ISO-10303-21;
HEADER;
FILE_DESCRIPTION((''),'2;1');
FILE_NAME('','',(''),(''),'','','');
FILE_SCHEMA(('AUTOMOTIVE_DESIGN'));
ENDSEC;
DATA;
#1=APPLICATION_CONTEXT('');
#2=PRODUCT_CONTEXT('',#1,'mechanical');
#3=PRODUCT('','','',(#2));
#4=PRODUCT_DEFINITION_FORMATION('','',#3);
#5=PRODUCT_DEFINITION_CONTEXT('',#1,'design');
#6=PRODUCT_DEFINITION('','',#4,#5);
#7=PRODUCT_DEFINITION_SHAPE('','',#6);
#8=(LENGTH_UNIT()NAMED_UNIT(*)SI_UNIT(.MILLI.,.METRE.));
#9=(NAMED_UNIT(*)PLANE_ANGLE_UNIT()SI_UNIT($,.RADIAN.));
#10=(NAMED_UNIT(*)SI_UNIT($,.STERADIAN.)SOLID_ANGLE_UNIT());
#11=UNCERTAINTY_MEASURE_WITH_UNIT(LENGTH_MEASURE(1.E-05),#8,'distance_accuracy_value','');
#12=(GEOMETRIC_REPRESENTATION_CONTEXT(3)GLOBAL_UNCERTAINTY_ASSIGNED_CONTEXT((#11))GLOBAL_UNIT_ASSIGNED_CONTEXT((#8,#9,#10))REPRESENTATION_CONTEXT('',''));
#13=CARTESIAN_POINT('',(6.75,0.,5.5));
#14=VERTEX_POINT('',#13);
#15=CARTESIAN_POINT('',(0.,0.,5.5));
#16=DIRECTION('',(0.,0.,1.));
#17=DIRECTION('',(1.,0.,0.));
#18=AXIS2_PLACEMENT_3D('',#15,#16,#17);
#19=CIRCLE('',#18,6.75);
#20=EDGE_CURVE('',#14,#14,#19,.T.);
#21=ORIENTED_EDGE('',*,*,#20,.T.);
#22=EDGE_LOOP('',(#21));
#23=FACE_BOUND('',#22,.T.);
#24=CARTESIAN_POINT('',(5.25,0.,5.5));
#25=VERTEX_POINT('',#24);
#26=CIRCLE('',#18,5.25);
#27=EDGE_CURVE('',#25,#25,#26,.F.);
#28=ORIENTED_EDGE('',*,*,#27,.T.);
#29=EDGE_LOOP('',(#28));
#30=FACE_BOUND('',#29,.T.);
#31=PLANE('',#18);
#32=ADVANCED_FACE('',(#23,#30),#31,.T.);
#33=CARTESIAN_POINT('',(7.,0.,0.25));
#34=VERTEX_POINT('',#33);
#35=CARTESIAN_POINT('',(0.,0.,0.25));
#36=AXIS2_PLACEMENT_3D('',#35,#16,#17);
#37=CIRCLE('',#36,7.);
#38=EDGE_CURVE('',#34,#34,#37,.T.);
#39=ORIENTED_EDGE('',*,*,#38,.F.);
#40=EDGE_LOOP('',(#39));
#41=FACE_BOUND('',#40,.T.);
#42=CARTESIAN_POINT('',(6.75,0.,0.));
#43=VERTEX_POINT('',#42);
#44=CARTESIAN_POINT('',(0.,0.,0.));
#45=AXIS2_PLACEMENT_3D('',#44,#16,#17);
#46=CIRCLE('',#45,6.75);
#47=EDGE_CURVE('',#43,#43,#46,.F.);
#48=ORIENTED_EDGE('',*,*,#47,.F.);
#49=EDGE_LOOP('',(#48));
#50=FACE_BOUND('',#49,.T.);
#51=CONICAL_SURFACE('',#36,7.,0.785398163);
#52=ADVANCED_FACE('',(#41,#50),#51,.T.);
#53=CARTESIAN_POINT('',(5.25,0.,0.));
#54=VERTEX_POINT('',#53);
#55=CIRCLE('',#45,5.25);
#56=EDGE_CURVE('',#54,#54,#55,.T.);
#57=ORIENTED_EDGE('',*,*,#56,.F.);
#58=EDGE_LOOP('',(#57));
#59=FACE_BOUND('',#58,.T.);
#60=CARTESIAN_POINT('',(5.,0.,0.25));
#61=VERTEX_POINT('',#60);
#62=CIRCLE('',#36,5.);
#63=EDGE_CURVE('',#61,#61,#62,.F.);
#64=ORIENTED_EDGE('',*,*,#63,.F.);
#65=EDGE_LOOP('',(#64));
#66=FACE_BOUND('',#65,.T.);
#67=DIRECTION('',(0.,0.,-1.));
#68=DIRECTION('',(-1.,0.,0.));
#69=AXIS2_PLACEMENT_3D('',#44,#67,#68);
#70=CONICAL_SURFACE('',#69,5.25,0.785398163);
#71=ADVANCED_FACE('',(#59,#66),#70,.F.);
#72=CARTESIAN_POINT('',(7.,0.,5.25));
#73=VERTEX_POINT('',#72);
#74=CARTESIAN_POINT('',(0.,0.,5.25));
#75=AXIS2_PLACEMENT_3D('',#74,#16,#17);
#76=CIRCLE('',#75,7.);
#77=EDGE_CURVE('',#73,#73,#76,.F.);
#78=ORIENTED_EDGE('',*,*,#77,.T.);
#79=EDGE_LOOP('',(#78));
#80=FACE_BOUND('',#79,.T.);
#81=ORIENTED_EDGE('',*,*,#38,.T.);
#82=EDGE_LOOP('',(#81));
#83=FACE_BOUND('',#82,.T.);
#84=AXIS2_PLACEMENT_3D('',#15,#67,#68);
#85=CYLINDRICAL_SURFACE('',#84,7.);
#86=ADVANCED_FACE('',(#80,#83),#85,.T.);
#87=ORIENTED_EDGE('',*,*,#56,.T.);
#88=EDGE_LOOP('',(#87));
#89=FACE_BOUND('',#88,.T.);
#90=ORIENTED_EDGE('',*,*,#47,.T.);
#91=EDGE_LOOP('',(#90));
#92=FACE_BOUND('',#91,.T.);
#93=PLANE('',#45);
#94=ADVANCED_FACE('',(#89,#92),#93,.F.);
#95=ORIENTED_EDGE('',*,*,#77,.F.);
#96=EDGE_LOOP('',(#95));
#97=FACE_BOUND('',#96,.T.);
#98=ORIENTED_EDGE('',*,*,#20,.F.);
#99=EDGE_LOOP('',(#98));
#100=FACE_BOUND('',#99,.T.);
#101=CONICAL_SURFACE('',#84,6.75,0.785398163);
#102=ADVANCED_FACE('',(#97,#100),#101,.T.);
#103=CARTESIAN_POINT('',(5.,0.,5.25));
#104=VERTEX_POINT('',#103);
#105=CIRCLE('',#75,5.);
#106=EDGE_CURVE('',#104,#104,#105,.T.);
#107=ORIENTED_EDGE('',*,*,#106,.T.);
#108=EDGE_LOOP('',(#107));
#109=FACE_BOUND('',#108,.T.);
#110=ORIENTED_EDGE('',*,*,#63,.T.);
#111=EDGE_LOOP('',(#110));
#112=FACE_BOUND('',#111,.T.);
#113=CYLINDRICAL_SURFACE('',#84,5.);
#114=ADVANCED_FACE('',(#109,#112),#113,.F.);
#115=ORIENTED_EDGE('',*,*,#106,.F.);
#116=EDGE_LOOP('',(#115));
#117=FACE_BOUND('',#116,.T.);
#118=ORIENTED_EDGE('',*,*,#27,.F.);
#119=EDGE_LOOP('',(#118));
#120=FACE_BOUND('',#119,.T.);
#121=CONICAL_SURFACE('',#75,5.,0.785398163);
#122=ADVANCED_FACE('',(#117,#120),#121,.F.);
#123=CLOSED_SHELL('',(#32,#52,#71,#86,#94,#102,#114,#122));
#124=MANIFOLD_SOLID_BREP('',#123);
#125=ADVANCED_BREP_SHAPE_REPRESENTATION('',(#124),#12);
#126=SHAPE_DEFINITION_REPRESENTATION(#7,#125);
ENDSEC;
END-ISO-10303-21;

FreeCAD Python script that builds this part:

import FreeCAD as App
import Part
import Sketcher


def edges_at(feature, points):
    """Names of the edges that pass closest to the given points."""
    edges = feature.Shape.Edges
    near = lambda p: min(range(len(edges)), key=lambda i: edges[i].distToShape(Part.Vertex(*p))[0])
    return sorted({f"Edge{near(p) + 1}" for p in points})

doc = App.newDocument("Part")
body = doc.addObject("PartDesign::Body", "Body")

sketch1 = body.newObject("Sketcher::SketchObject", "Sketch")
sketch1.AttachmentSupport = (doc.getObject("XY_Plane"), [""])
sketch1.MapMode = "FlatFace"
sketch1.addGeometry([
    Part.Circle(App.Vector(0, 0, 0), App.Vector(0, 0, 1), 7),
    Part.Circle(App.Vector(0, 0, 0), App.Vector(0, 0, 1), 5),
], False)
sketch1.addConstraint([
    Sketcher.Constraint("Coincident", 0, 3, -1, 1),
    Sketcher.Constraint("Coincident", 1, 3, -1, 1),
    Sketcher.Constraint("Diameter", 0, 14.0),
    Sketcher.Constraint("Diameter", 1, 10.0),
])
pad1 = body.newObject("PartDesign::Pad", "Pad")
pad1.Profile = sketch1
pad1.Length = 5.5
doc.recompute()

chamfer = body.newObject("PartDesign::Chamfer", "Chamfer")
chamfer.Base = (pad1, edges_at(pad1, [
    (-7, 0, 0),
    (-7, 0, 5.5),
    (-5, 0, 0),
    (-5, 0, 5.5),
]))
chamfer.Size = 0.25

doc.recompute()
